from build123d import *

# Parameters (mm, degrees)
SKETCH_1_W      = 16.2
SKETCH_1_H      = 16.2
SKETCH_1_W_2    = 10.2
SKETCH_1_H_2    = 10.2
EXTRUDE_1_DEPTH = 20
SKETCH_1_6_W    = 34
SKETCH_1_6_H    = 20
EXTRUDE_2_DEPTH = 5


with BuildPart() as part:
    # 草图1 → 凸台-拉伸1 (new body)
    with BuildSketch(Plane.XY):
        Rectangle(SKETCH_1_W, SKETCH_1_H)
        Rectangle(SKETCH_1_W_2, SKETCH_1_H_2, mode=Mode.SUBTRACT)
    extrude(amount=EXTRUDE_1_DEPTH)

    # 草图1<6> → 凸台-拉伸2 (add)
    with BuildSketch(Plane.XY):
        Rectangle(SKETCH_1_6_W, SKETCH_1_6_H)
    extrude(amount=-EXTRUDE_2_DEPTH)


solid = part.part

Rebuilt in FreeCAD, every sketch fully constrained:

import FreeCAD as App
import Part
import Sketcher
Q = App.Units.Quantity


def add_polygon(sketch, points):
    """Adds a closed chain of lines whose ends are joined by coincident constraints."""
    first, n = sketch.GeometryCount, len(points)
    for a, b in zip(points, points[1:] + points[:1]):
        sketch.addGeometry(Part.LineSegment(App.Vector(*a, 0), App.Vector(*b, 0)), False)
    for i in range(n):
        sketch.addConstraint(Sketcher.Constraint("Coincident", first + i, 2, first + (i + 1) % n, 1))

doc = App.newDocument("Part")
body = doc.addObject("PartDesign::Body", "Body")

sketch1 = doc.addObject("Sketcher::SketchObject", "Sketch")
body.addObject(sketch1)
sketch1.AttachmentSupport = (doc.XY_Plane, [""])
sketch1.MapMode = "FlatFace"
add_polygon(sketch1, [(-8.1, 8.1), (-8.1, -8.1), (8.1, -8.1), (8.1, 8.1)])
add_polygon(sketch1, [(5.1, -5.1), (-5.1, -5.1), (-5.1, 5.1), (5.1, 5.1)])
sketch1.addConstraint([
    Sketcher.Constraint("Vertical", 0),
    Sketcher.Constraint("Horizontal", 1),
    Sketcher.Constraint("Vertical", 2),
    Sketcher.Constraint("Horizontal", 3),
    Sketcher.Constraint("Horizontal", 4),
    Sketcher.Constraint("Vertical", 5),
    Sketcher.Constraint("Horizontal", 6),
    Sketcher.Constraint("Vertical", 7),
    Sketcher.Constraint("Symmetric", 0, 2, 2, 2, -1, 1),
    Sketcher.Constraint("Symmetric", 4, 2, 6, 2, -1, 1),
    Sketcher.Constraint("Equal", 3, 0),
    Sketcher.Constraint("Equal", 6, 5),
    Sketcher.Constraint("DistanceX", 1, 1, 1, 2, Q("16.2 mm")),
    Sketcher.Constraint("DistanceX", 4, 2, 4, 1, Q("10.2 mm")),
])
pad1 = doc.addObject("PartDesign::Pad", "Pad")
body.addObject(pad1)
pad1.Profile = sketch1
pad1.Length = 20

sketch2 = doc.addObject("Sketcher::SketchObject", "Sketch001")
body.addObject(sketch2)
sketch2.AttachmentSupport = (doc.XY_Plane, [""])
sketch2.MapMode = "FlatFace"
add_polygon(sketch2, [(-17, 10), (-17, -10), (17, -10), (17, 10)])
sketch2.addConstraint([
    Sketcher.Constraint("Vertical", 0),
    Sketcher.Constraint("Horizontal", 1),
    Sketcher.Constraint("Vertical", 2),
    Sketcher.Constraint("Horizontal", 3),
    Sketcher.Constraint("Symmetric", 0, 2, 2, 2, -1, 1),
    Sketcher.Constraint("DistanceX", 1, 1, 1, 2, Q("34 mm")),
    Sketcher.Constraint("DistanceY", 0, 2, 0, 1, Q("20 mm")),
])
pad2 = doc.addObject("PartDesign::Pad", "Pad001")
body.addObject(pad2)
pad2.Profile = sketch2
pad2.Length = 5
pad2.Reversed = True

doc.recompute()
